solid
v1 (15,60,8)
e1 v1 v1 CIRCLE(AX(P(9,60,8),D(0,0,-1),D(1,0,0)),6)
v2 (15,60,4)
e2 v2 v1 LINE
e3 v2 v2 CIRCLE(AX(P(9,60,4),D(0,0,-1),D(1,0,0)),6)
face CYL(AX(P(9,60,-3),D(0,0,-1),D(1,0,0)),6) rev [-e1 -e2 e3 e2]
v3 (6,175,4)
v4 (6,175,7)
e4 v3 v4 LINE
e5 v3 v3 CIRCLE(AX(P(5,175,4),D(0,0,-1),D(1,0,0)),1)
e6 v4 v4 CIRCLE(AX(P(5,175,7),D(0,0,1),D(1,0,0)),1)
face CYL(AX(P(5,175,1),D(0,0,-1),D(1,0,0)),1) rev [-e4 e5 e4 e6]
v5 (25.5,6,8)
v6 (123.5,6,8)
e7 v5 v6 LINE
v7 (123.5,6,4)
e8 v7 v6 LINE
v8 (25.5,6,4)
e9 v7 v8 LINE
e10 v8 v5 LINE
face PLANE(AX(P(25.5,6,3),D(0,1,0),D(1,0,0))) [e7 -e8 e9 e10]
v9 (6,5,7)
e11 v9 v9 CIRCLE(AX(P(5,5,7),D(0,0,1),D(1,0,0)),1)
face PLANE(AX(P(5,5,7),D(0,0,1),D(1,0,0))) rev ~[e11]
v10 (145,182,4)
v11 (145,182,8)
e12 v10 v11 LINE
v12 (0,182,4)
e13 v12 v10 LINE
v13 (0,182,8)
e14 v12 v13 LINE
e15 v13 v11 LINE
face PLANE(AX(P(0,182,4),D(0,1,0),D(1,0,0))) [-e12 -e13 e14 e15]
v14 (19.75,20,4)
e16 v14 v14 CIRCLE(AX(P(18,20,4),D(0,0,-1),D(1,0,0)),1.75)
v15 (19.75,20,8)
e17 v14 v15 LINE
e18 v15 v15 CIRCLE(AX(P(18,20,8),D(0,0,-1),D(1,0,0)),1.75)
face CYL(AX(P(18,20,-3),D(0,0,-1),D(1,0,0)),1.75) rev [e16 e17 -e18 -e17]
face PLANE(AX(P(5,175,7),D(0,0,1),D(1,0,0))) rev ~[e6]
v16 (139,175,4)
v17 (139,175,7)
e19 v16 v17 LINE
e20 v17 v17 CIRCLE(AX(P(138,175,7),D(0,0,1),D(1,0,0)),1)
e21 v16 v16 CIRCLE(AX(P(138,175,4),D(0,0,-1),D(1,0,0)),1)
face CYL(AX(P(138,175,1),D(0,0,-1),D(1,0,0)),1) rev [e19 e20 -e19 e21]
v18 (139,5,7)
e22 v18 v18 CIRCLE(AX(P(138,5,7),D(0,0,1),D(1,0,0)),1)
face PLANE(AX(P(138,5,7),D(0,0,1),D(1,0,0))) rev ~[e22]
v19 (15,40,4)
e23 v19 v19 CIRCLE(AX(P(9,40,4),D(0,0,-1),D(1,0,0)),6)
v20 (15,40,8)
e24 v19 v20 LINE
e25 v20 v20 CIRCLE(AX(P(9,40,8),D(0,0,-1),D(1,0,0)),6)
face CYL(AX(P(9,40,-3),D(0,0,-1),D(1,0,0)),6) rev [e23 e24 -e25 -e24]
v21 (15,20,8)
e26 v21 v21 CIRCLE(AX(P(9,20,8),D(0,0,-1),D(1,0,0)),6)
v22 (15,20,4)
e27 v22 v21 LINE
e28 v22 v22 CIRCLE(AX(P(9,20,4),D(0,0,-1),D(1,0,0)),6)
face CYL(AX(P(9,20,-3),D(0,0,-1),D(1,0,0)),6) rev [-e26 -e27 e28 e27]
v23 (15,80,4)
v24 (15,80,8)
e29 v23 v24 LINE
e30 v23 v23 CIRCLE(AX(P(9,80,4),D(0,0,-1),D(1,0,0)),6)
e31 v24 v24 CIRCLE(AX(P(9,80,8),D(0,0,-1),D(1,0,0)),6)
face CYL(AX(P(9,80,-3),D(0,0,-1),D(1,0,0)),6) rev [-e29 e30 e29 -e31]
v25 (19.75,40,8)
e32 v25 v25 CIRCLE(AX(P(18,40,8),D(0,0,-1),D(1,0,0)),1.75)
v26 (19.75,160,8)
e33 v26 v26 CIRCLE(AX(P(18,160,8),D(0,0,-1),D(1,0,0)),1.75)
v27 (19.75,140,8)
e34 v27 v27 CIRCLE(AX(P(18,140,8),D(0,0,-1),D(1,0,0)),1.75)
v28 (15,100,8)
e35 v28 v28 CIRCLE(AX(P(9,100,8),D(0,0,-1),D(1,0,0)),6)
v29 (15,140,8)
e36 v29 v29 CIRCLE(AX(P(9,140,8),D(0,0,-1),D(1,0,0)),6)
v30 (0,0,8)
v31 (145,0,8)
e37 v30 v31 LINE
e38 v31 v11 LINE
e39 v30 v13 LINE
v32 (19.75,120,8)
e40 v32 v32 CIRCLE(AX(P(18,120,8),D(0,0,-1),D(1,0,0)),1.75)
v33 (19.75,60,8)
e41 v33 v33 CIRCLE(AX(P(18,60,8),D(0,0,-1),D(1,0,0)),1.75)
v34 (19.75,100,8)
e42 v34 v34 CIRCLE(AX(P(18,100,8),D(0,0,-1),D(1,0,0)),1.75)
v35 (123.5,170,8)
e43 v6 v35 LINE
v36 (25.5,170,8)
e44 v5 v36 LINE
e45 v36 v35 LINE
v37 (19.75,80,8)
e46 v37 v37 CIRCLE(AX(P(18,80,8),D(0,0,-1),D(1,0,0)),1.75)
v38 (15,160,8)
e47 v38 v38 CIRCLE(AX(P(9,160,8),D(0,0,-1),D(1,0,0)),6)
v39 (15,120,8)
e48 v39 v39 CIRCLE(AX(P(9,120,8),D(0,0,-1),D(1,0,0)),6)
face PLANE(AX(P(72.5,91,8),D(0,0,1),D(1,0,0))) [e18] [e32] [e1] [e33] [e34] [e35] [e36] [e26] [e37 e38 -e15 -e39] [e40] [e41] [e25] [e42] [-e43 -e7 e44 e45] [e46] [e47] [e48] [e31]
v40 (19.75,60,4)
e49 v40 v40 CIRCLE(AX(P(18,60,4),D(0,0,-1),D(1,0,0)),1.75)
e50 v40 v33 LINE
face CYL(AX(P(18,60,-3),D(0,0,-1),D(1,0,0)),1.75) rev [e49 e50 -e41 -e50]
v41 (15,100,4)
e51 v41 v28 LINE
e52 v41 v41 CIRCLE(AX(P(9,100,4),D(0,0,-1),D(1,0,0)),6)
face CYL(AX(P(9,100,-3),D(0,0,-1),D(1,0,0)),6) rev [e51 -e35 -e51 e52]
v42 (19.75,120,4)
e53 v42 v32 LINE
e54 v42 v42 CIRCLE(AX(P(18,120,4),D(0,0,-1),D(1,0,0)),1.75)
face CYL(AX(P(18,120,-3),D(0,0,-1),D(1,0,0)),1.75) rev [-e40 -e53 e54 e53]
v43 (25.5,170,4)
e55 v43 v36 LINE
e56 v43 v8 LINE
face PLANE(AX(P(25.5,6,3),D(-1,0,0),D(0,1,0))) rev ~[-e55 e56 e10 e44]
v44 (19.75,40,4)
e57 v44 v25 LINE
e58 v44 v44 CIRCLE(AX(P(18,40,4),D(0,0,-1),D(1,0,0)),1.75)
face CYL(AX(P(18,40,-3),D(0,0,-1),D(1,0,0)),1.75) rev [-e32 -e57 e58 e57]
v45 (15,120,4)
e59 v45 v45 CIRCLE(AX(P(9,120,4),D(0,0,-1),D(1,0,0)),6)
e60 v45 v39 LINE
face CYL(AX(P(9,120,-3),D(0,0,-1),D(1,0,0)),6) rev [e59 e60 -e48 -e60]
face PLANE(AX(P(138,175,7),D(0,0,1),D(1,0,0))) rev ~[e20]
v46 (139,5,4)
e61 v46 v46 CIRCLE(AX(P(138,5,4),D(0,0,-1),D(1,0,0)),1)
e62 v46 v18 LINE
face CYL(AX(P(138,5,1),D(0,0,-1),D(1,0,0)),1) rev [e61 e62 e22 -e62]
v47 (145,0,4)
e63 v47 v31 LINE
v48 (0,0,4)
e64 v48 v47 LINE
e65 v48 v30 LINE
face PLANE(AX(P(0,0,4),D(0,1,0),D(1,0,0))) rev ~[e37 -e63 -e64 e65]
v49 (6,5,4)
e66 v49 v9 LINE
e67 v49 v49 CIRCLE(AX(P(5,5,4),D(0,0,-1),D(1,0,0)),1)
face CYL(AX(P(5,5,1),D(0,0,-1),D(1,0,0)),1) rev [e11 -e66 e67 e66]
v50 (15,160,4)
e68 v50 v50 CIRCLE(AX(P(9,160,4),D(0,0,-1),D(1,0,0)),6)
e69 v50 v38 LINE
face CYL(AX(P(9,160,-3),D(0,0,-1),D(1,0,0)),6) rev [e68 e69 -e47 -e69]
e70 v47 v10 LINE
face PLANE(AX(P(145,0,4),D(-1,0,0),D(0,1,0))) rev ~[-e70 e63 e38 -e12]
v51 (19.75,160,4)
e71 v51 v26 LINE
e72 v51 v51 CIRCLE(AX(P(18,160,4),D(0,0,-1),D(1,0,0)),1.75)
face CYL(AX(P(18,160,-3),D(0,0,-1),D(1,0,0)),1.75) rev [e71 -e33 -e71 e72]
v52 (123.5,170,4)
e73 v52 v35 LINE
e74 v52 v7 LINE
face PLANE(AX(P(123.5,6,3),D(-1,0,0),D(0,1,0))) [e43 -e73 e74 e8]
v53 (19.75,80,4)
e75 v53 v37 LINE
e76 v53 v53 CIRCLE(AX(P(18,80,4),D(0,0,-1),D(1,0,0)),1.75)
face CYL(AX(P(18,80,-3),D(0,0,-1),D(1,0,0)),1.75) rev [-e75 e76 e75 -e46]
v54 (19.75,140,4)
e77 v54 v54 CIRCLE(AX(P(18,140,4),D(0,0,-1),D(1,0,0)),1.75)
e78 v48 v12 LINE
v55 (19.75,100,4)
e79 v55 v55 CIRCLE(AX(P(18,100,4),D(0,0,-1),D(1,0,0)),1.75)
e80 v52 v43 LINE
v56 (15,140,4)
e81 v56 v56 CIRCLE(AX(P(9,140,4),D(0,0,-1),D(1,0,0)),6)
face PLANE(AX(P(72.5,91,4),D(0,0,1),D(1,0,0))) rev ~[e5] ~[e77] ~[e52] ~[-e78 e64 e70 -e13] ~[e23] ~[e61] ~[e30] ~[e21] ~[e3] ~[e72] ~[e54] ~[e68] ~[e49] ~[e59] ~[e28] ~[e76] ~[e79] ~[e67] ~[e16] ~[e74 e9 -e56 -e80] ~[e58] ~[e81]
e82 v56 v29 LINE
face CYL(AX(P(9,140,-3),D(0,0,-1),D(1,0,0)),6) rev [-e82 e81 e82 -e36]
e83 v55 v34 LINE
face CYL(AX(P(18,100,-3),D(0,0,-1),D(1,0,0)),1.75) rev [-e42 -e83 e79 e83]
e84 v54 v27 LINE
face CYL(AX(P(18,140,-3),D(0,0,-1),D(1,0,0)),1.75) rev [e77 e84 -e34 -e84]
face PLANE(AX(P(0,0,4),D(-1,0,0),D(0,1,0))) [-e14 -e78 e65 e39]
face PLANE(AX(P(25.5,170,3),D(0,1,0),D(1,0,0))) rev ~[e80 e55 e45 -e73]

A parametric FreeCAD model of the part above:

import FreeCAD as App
import Part
import Sketcher
Q = App.Units.Quantity

doc = App.newDocument("Part")
body = doc.addObject("PartDesign::Body", "Body")

sketch1 = body.newObject("Sketcher::SketchObject", "Sketch")
sketch1.AttachmentSupport = (doc.getObject("XY_Plane"), [""])
sketch1.MapMode = "FlatFace"
sketch1.addGeometry([
    Part.LineSegment(App.Vector(0, 182, 0), App.Vector(0, 0, 0)),
    Part.LineSegment(App.Vector(0, 0, 0), App.Vector(145, 0, 0)),
    Part.LineSegment(App.Vector(145, 0, 0), App.Vector(145, 182, 0)),
    Part.LineSegment(App.Vector(145, 182, 0), App.Vector(0, 182, 0)),
], False)
sketch1.addConstraint([
    Sketcher.Constraint("Coincident", 0, 2, 1, 1),
    Sketcher.Constraint("Coincident", 1, 2, 2, 1),
    Sketcher.Constraint("Coincident", 2, 2, 3, 1),
    Sketcher.Constraint("Coincident", 3, 2, 0, 1),
    Sketcher.Constraint("Vertical", 0),
    Sketcher.Constraint("Horizontal", 1),
    Sketcher.Constraint("Vertical", 2),
    Sketcher.Constraint("Horizontal", 3),
    Sketcher.Constraint("Coincident", 0, 2, -1, 1),
    Sketcher.Constraint("DistanceX", 1, 1, 1, 2, Q("145 mm")),
    Sketcher.Constraint("DistanceY", 0, 2, 0, 1, Q("182 mm")),
])
pad1 = body.newObject("PartDesign::Pad", "Pad")
pad1.Profile = sketch1
pad1.Length = 4

sketch2 = body.newObject("Sketcher::SketchObject", "Sketch001")
sketch2.AttachmentSupport = (doc.getObject("XY_Plane"), [""])
sketch2.MapMode = "FlatFace"
sketch2.AttachmentOffset = App.Placement(App.Vector(0, 0, -1), App.Rotation())
sketch2.addGeometry([
    Part.LineSegment(App.Vector(25.5, 170, 0), App.Vector(25.5, 6, 0)),
    Part.LineSegment(App.Vector(25.5, 6, 0), App.Vector(123.5, 6, 0)),
    Part.LineSegment(App.Vector(123.5, 6, 0), App.Vector(123.5, 170, 0)),
    Part.LineSegment(App.Vector(123.5, 170, 0), App.Vector(25.5, 170, 0)),
], False)
sketch2.addConstraint([
    Sketcher.Constraint("Coincident", 0, 2, 1, 1),
    Sketcher.Constraint("Coincident", 1, 2, 2, 1),
    Sketcher.Constraint("Coincident", 2, 2, 3, 1),
    Sketcher.Constraint("Coincident", 3, 2, 0, 1),
    Sketcher.Constraint("Vertical", 0),
    Sketcher.Constraint("Horizontal", 1),
    Sketcher.Constraint("Vertical", 2),
    Sketcher.Constraint("Horizontal", 3),
    Sketcher.Constraint("DistanceX", 1, 1, 1, 2, Q("98 mm")),
    Sketcher.Constraint("DistanceY", 0, 2, 0, 1, Q("164 mm")),
    Sketcher.Constraint("DistanceY", -1, 1, 0, 2, Q("6 mm")),
    Sketcher.Constraint("DistanceX", -1, 1, 0, 2, Q("25.5 mm")),
])
pocket1 = body.newObject("PartDesign::Pocket", "Pocket")
pocket1.Profile = sketch2
pocket1.Length = 5
pocket1.Reversed = True

sketch3 = body.newObject("Sketcher::SketchObject", "Sketch002")
sketch3.AttachmentSupport = (doc.getObject("XY_Plane"), [""])
sketch3.MapMode = "FlatFace"
sketch3.AttachmentOffset = App.Placement(App.Vector(0, 0, -7), App.Rotation())
sketch3.addGeometry(Part.Circle(App.Vector(9, 20, 0), App.Vector(0, 0, 1), 6), False)
sketch3.addConstraint([
    Sketcher.Constraint("Diameter", 0, Q("12 mm")),
    Sketcher.Constraint("DistanceX", -1, 1, 0, 3, Q("9 mm")),
    Sketcher.Constraint("DistanceY", -1, 1, 0, 3, Q("20 mm")),
])
pocket2 = body.newObject("PartDesign::Pocket", "Pocket001")
pocket2.Profile = sketch3
pocket2.Length = 12
pocket2.Reversed = True

sketch4 = body.newObject("Sketcher::SketchObject", "Sketch003")
sketch4.AttachmentSupport = (doc.getObject("XY_Plane"), [""])
sketch4.MapMode = "FlatFace"
sketch4.AttachmentOffset = App.Placement(App.Vector(0, 0, -7), App.Rotation())
sketch4.addGeometry(Part.Circle(App.Vector(18, 20, 0), App.Vector(0, 0, 1), 1.75), False)
sketch4.addConstraint([
    Sketcher.Constraint("Diameter", 0, Q("3.5 mm")),
    Sketcher.Constraint("DistanceX", -1, 1, 0, 3, Q("18 mm")),
    Sketcher.Constraint("DistanceY", -1, 1, 0, 3, Q("20 mm")),
])
pocket3 = body.newObject("PartDesign::Pocket", "Pocket002")
pocket3.Profile = sketch4
pocket3.Length = 12
pocket3.Reversed = True
doc.recompute()

linearpattern = body.newObject("PartDesign::LinearPattern", "LinearPattern")
linearpattern.Originals = [pocket2, pocket3]
linearpattern.Direction = (doc.getObject("Y_Axis"), [""])
linearpattern.Mode = "offset"
linearpattern.Offset = 20
linearpattern.Occurrences = 8
body.Tip = linearpattern

sketch5 = body.newObject("Sketcher::SketchObject", "Sketch004")
sketch5.AttachmentSupport = (doc.getObject("XY_Plane"), [""])
sketch5.MapMode = "FlatFace"
sketch5.AttachmentOffset = App.Placement(App.Vector(0, 0, -3), App.Rotation())
sketch5.addGeometry(Part.Circle(App.Vector(5, 5, 0), App.Vector(0, 0, 1), 1), False)
sketch5.addConstraint([
    Sketcher.Constraint("Diameter", 0, Q("2 mm")),
    Sketcher.Constraint("DistanceX", -1, 1, 0, 3, Q("5 mm")),
    Sketcher.Constraint("DistanceY", -1, 1, 0, 3, Q("5 mm")),
])
pocket4 = body.newObject("PartDesign::Pocket", "Pocket003")
pocket4.Profile = sketch5
pocket4.Length = 6
pocket4.Reversed = True

sketch6 = body.newObject("Sketcher::SketchObject", "Sketch005")
sketch6.AttachmentSupport = (doc.getObject("XY_Plane"), [""])
sketch6.MapMode = "FlatFace"
sketch6.AttachmentOffset = App.Placement(App.Vector(0, 0, -3), App.Rotation())
sketch6.addGeometry(Part.Circle(App.Vector(138, 5, 0), App.Vector(0, 0, 1), 1), False)
sketch6.addConstraint([
    Sketcher.Constraint("Diameter", 0, Q("2 mm")),
    Sketcher.Constraint("DistanceX", -1, 1, 0, 3, Q("138 mm")),
    Sketcher.Constraint("DistanceY", -1, 1, 0, 3, Q("5 mm")),
])
pocket5 = body.newObject("PartDesign::Pocket", "Pocket004")
pocket5.Profile = sketch6
pocket5.Length = 6
pocket5.Reversed = True
doc.recompute()

linearpattern2 = body.newObject("PartDesign::LinearPattern", "LinearPattern001")
linearpattern2.Originals = [pocket4, pocket5]
linearpattern2.Direction = (doc.getObject("Y_Axis"), [""])
linearpattern2.Mode = "offset"
linearpattern2.Offset = 170
linearpattern2.Occurrences = 2
body.Tip = linearpattern2
body2 = doc.addObject("PartDesign::Body", "Body001")
doc.recompute()

body.Placement = App.Placement(App.Vector(0, 0, 4), App.Rotation(App.Vector(0, 0, 1), 0))
boolean = body2.newObject("PartDesign::Boolean", "Boolean")
boolean.Type = "Fuse"
boolean.addObjects([body])

doc.recompute()
